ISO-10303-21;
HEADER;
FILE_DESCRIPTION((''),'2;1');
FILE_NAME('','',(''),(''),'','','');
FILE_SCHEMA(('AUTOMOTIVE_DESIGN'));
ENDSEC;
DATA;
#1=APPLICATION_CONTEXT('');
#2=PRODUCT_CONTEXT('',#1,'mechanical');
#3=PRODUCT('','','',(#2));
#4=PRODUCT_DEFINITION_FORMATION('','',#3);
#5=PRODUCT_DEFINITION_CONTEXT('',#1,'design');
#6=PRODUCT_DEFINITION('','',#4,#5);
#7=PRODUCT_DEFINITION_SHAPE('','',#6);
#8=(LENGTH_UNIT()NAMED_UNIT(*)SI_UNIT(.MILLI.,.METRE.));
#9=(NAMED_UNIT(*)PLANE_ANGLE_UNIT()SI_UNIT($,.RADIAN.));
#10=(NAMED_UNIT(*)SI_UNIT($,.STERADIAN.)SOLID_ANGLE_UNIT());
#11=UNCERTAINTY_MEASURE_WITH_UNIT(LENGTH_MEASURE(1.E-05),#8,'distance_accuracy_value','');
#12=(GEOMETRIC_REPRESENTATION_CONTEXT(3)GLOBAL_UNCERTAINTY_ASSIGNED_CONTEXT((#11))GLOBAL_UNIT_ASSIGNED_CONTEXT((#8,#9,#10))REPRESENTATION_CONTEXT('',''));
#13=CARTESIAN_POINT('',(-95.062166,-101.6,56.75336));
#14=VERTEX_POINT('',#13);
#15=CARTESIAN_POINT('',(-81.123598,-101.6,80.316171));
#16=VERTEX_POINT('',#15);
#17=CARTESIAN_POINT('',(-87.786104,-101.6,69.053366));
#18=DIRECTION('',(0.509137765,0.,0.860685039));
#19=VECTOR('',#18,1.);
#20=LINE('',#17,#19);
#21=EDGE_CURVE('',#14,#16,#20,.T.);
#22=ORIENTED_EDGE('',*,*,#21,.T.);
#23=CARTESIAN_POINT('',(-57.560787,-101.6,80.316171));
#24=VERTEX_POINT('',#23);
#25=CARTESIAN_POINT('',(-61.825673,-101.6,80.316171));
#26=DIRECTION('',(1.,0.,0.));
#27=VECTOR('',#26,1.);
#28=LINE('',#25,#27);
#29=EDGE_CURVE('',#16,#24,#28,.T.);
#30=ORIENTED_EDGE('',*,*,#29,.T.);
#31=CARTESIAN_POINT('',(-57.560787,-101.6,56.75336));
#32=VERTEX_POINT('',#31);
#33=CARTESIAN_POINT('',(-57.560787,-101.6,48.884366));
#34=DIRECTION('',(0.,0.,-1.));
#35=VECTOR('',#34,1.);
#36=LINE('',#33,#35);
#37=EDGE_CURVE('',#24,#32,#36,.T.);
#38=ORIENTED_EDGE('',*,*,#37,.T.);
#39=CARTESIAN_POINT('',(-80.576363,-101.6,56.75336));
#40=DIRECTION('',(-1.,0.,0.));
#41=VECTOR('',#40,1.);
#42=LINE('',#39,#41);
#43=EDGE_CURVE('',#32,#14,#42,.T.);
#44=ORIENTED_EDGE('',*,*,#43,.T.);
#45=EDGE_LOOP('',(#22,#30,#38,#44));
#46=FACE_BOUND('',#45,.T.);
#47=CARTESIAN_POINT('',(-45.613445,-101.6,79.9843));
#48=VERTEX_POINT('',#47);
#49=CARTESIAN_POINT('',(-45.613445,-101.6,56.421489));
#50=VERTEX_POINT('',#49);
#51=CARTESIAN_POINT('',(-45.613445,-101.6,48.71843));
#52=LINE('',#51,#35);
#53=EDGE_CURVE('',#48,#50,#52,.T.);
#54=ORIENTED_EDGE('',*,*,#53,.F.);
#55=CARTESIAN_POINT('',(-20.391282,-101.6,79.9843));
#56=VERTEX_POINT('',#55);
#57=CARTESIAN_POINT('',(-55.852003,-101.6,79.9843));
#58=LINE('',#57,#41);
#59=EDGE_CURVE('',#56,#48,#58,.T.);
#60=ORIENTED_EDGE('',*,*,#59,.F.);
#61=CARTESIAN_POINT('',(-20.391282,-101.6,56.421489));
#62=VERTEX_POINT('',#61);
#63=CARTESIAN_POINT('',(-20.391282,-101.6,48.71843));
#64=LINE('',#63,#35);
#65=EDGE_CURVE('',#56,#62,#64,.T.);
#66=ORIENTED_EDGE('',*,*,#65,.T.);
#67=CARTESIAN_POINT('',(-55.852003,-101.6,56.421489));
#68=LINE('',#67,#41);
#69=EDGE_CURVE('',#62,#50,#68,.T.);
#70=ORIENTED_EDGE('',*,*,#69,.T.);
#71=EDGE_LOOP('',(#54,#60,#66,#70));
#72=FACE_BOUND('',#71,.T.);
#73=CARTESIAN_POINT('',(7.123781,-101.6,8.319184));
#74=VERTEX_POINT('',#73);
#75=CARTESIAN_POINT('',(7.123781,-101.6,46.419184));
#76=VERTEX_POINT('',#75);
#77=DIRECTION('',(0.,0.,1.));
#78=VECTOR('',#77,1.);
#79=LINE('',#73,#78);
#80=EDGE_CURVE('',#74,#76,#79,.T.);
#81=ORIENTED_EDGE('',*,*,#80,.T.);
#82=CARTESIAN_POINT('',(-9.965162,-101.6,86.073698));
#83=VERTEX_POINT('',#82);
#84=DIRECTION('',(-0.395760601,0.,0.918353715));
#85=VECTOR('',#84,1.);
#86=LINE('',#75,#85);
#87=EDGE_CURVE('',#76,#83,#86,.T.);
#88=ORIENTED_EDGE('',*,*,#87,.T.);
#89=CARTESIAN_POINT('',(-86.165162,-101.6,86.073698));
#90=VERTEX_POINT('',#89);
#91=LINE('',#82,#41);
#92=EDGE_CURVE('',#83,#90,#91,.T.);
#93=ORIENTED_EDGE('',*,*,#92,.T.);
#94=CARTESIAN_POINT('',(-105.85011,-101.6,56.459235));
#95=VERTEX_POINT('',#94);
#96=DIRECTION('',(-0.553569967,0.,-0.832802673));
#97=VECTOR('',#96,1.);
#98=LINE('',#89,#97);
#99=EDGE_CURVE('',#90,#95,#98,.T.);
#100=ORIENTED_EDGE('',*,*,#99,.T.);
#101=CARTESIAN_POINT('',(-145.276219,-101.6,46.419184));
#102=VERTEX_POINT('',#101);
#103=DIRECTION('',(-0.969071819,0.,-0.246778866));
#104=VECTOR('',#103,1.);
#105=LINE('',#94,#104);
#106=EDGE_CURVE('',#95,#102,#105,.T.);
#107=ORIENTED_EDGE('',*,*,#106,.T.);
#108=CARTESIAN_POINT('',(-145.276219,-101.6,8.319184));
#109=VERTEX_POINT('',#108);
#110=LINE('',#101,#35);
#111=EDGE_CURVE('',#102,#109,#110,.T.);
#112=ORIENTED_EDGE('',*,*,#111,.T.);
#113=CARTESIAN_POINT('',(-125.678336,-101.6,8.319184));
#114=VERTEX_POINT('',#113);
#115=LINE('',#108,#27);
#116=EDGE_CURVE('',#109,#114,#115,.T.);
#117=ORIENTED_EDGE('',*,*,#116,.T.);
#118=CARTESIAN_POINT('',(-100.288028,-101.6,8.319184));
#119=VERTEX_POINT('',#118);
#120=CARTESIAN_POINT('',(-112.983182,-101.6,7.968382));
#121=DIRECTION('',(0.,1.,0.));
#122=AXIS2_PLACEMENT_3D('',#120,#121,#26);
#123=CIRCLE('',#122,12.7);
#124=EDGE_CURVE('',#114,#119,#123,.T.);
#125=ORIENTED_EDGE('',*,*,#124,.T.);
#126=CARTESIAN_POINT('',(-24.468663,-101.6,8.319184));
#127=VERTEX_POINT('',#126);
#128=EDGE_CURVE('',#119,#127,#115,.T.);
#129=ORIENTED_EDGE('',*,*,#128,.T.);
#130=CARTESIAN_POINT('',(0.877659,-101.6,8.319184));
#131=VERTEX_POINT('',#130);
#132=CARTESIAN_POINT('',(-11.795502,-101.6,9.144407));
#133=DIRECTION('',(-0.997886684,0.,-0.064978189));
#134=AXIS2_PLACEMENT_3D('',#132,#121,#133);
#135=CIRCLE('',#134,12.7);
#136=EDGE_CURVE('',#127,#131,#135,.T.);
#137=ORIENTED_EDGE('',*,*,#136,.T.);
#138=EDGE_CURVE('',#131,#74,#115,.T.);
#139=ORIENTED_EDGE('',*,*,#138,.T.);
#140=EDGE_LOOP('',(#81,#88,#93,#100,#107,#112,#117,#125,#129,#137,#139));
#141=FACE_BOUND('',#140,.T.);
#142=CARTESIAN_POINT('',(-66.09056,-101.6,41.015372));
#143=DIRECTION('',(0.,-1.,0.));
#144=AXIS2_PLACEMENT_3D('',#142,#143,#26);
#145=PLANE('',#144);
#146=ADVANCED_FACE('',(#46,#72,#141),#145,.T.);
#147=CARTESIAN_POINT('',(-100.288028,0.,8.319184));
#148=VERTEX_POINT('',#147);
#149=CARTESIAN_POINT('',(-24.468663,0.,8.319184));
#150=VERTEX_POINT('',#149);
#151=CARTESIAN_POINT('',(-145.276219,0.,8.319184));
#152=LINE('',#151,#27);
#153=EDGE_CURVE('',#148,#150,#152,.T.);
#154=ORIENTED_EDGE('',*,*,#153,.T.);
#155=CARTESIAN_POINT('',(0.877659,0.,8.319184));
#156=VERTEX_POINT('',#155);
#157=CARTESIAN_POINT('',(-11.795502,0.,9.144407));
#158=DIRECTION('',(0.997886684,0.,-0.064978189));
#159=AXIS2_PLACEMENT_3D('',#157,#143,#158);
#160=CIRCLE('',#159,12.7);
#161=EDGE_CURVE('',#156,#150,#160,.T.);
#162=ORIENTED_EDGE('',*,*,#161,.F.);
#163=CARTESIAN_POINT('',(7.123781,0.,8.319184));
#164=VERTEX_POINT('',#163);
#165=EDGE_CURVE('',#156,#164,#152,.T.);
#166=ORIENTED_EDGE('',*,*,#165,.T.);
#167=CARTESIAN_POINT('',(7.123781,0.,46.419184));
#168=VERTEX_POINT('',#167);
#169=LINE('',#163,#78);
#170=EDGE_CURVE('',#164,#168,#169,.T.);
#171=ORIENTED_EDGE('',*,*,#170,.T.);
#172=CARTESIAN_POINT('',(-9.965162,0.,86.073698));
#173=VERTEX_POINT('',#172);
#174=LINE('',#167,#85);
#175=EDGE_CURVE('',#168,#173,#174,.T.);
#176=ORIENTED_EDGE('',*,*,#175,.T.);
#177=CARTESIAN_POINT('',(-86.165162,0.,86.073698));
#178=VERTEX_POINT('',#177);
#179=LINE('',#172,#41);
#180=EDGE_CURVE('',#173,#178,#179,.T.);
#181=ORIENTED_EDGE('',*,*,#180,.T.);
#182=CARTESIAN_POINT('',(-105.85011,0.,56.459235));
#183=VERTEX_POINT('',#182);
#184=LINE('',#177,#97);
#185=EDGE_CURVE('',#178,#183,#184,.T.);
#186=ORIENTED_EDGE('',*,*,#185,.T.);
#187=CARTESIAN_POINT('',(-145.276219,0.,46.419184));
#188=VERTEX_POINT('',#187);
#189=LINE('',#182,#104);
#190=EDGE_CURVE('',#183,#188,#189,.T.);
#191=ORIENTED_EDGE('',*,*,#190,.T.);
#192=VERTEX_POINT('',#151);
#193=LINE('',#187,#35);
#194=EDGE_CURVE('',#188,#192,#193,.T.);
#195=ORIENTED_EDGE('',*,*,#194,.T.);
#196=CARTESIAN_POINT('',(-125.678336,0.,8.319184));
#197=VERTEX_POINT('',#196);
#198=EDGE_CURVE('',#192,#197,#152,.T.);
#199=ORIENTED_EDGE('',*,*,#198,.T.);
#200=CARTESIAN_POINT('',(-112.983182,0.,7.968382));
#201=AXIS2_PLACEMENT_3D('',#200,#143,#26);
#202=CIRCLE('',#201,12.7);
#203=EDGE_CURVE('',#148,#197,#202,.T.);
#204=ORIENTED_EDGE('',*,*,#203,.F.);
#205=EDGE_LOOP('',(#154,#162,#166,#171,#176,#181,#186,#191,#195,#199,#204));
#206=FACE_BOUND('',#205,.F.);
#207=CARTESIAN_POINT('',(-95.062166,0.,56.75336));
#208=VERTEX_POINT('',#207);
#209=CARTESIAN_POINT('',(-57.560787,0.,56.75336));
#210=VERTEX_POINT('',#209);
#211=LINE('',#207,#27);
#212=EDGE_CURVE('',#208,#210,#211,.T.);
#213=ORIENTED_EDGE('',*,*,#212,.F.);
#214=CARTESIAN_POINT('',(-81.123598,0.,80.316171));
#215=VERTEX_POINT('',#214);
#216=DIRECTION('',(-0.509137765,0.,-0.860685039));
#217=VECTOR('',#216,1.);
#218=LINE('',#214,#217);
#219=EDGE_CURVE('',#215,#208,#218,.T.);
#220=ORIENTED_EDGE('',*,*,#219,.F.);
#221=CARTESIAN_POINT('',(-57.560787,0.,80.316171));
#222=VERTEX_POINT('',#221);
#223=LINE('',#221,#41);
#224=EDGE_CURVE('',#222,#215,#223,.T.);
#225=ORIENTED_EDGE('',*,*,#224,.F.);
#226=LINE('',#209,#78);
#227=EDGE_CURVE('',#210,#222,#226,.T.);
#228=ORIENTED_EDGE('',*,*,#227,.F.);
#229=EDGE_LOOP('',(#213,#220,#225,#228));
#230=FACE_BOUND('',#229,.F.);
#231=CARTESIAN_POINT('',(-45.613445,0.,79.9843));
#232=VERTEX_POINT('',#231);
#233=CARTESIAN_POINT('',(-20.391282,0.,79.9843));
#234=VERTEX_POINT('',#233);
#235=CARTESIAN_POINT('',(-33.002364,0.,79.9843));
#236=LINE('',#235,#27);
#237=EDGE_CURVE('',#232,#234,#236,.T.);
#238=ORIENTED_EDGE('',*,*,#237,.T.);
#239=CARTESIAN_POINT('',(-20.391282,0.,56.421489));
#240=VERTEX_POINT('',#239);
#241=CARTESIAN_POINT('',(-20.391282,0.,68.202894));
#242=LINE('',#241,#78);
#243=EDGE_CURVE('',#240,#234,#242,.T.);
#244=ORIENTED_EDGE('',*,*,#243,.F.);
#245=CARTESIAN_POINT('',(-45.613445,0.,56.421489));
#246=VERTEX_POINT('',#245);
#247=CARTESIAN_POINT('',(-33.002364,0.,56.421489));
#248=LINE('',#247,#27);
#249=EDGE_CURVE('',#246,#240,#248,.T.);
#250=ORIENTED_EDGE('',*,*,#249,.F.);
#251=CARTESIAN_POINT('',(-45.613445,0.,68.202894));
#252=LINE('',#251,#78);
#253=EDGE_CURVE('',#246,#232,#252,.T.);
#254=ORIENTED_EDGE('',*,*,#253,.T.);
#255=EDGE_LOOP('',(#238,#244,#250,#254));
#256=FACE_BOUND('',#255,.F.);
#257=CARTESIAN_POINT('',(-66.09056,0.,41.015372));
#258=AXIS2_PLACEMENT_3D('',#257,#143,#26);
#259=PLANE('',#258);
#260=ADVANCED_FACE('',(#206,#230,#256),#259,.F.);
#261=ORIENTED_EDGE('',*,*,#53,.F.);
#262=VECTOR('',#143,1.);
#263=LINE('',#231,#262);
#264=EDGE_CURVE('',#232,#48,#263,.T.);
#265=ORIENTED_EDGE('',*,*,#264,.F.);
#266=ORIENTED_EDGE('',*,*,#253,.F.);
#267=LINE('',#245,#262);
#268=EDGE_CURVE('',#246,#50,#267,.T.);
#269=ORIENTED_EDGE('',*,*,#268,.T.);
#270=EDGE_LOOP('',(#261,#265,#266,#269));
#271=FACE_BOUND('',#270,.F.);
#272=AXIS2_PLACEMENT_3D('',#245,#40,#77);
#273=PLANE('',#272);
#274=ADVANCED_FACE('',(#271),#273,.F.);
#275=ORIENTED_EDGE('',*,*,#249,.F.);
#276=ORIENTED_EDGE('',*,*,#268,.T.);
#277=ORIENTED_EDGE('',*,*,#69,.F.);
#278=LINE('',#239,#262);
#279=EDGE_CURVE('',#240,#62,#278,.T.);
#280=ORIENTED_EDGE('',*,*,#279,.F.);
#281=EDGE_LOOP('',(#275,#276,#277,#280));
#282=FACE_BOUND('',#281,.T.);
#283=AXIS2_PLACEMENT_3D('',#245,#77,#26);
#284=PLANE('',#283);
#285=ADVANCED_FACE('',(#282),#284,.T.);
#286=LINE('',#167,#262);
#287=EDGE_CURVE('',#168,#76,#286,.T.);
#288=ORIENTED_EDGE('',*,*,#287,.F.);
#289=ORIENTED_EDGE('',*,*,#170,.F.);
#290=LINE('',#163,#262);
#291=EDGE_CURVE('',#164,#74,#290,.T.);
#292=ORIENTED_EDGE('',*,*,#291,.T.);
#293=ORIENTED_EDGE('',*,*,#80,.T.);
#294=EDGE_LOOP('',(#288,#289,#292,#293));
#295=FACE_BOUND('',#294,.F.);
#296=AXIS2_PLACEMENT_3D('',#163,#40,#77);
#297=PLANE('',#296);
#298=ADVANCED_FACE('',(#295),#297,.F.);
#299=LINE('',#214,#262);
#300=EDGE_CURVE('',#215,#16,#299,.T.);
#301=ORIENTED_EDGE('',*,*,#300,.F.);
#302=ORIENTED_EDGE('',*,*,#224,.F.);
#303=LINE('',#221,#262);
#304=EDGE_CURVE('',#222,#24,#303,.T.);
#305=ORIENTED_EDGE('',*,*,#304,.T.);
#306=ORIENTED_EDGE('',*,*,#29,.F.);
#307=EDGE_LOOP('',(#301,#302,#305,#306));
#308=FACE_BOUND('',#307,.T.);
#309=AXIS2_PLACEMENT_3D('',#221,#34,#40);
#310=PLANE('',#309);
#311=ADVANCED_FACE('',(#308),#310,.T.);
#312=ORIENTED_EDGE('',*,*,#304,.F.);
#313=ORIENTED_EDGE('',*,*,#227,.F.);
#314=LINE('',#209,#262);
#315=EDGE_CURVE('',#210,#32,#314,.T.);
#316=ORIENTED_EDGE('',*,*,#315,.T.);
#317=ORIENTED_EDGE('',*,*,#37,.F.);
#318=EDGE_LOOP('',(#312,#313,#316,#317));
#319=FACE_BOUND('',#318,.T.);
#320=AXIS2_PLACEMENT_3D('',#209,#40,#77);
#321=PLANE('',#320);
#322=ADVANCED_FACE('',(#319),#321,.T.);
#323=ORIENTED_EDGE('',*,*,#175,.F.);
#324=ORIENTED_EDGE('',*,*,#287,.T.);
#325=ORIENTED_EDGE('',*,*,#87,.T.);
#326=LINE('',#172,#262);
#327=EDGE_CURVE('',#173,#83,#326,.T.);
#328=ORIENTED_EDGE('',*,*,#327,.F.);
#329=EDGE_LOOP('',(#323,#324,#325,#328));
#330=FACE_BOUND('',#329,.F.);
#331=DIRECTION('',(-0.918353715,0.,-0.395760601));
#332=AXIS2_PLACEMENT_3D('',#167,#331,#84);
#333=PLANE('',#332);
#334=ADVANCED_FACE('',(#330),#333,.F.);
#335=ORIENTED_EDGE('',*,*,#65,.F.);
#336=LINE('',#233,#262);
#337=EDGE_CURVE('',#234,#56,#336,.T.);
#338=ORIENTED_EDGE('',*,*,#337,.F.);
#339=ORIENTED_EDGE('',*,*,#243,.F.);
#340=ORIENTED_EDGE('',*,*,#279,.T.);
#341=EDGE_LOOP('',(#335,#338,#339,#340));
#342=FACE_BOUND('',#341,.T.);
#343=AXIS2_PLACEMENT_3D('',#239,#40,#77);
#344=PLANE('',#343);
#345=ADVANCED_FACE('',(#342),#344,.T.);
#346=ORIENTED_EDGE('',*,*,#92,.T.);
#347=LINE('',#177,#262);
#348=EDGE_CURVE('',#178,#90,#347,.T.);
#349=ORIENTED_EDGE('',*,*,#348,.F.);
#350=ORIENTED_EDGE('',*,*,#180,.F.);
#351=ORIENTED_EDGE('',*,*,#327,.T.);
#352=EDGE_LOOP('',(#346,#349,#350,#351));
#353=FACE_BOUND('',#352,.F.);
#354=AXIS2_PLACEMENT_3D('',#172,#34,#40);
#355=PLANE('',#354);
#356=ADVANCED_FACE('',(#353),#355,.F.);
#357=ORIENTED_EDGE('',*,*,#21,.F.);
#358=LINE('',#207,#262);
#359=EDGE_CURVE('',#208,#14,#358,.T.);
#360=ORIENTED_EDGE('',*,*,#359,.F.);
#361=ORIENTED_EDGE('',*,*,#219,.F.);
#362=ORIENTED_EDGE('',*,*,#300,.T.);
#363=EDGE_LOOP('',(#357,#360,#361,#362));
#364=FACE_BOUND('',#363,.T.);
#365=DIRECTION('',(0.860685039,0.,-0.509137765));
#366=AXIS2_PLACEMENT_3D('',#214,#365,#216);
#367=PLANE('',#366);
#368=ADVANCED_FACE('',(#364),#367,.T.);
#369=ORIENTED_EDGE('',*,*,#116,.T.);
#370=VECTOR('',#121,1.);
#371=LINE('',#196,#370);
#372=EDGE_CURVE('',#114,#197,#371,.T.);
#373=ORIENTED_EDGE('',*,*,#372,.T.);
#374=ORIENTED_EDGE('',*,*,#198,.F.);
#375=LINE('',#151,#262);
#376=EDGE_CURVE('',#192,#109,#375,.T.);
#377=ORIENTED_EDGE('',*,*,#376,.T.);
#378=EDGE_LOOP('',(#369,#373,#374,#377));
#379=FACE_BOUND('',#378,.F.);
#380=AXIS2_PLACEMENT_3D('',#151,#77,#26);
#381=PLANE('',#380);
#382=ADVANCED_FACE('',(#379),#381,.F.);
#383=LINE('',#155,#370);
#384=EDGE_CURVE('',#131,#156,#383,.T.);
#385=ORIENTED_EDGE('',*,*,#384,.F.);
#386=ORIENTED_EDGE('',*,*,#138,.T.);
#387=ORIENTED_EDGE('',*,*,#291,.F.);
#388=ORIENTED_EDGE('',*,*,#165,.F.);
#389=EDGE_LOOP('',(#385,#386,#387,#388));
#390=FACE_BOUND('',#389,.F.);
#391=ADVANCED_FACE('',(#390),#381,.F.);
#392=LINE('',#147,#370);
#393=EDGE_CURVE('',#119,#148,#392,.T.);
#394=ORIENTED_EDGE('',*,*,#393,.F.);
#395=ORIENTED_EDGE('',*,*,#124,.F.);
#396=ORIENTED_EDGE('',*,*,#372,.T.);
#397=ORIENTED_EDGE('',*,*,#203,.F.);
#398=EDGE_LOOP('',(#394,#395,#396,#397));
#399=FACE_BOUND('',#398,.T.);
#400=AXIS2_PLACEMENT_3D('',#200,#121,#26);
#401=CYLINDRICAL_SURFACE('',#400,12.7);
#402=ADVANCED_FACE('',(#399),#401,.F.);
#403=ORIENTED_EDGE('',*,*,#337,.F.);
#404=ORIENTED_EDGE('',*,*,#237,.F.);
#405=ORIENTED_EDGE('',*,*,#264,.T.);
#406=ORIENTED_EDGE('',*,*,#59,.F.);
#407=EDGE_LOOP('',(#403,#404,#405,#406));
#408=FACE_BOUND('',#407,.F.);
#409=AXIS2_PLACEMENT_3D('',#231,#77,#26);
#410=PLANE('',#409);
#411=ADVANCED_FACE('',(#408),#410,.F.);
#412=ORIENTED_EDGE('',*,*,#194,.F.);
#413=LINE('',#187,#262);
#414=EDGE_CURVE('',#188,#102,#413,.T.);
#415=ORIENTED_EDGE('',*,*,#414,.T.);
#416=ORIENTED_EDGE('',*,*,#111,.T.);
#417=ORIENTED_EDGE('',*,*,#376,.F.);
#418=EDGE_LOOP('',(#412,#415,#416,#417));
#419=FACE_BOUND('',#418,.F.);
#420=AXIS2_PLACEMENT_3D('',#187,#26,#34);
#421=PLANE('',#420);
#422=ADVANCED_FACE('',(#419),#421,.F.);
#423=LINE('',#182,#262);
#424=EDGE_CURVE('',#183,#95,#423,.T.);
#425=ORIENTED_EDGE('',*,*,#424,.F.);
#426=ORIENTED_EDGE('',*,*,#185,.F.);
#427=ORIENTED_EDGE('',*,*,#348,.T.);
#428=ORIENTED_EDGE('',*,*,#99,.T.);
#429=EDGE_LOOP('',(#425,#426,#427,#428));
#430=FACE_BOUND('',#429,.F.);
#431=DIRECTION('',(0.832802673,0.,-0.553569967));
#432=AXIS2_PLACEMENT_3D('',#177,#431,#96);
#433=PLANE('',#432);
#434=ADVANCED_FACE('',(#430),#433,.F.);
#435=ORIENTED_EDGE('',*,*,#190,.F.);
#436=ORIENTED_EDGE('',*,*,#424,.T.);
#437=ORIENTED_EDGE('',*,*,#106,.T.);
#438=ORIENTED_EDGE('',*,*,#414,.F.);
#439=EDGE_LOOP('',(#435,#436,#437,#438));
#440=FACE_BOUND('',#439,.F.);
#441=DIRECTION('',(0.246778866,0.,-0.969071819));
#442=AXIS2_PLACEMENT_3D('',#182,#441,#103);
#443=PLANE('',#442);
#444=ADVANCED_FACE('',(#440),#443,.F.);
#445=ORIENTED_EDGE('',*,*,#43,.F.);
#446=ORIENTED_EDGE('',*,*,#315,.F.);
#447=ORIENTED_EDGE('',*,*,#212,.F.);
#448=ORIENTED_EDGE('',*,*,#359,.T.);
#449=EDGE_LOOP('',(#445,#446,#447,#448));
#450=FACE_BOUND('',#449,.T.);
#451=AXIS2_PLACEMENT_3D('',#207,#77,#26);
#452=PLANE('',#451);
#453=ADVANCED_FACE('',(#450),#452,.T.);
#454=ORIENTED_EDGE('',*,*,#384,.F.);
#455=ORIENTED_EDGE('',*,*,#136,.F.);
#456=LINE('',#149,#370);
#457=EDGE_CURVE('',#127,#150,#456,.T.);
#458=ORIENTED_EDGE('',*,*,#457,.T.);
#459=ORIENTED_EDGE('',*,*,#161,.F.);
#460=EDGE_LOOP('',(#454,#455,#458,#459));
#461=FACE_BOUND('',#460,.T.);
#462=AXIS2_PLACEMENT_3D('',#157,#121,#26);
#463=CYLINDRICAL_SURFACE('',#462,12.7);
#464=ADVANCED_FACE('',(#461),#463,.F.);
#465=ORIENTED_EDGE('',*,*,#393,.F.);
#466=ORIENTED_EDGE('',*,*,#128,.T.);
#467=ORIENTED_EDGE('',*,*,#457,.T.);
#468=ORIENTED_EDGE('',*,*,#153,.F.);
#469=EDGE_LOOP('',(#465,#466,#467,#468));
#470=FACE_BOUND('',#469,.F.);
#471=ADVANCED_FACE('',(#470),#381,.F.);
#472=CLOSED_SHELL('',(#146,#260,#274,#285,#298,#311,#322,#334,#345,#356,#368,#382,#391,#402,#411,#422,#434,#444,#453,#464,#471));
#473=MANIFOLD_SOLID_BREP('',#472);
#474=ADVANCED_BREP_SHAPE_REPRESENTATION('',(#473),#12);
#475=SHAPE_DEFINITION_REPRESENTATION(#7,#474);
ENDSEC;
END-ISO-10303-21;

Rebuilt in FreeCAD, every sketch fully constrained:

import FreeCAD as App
import Part
import Sketcher

V = App.Vector
Q = App.Units.Quantity


def add_polygon(sketch, points):
    """Adds a closed chain of lines whose ends are joined by coincident constraints."""
    first, n = sketch.GeometryCount, len(points)
    for a, b in zip(points, points[1:] + points[:1]):
        sketch.addGeometry(Part.LineSegment(App.Vector(*a, 0), App.Vector(*b, 0)), False)
    for i in range(n):
        sketch.addConstraint(Sketcher.Constraint("Coincident", first + i, 2, first + (i + 1) % n, 1))

doc = App.newDocument("Part")
body = doc.addObject("PartDesign::Body", "Body")

sketch1 = doc.addObject("Sketcher::SketchObject", "Sketch")
body.addObject(sketch1)
sketch1.AttachmentSupport = (doc.XZ_Plane, [""])
sketch1.MapMode = "FlatFace"
add_polygon(sketch1, [(-105.85011, 56.459235), (-145.276219, 46.419184), (-145.276219, 8.319184), (7.123781, 8.319184), (7.123781, 46.419184), (-9.965162, 86.073698), (-86.165162, 86.073698)])
sketch1.addConstraint([
    Sketcher.Constraint("Vertical", 1),
    Sketcher.Constraint("Horizontal", 2),
    Sketcher.Constraint("Vertical", 3),
    Sketcher.Constraint("Horizontal", 5),
    Sketcher.Constraint("Horizontal", 0, 2, 3, 2),
    Sketcher.Constraint("DistanceX", 2, 1, 2, 2, Q("6 in")),
    Sketcher.Constraint("DistanceX", 5, 2, 5, 1, Q("3 in")),
    Sketcher.Constraint("DistanceY", 1, 2, 1, 1, Q("1.5 in")),
    Sketcher.Constraint("Distance", 4, Q("1.7 in")),
    Sketcher.Constraint("Distance", 6, Q("1.4 in")),
    Sketcher.Constraint("DistanceX", 0, 2, -1, 1, 145.276219),
    Sketcher.Constraint("DistanceX", 5, 2, -1, 1, 86.165162),
    Sketcher.Constraint("DistanceX", 6, 2, -1, 1, 105.85011),
    Sketcher.Constraint("DistanceY", -1, 1, 0, 2, 46.419184),
])
pad1 = doc.addObject("PartDesign::Pad", "Pad")
body.addObject(pad1)
pad1.Profile = sketch1
pad1.Length = Q("4 in")

sketch2 = doc.addObject("Sketcher::SketchObject", "Sketch001")
body.addObject(sketch2)
sketch2.AttachmentSupport = (doc.XZ_Plane, [""])
sketch2.MapMode = "FlatFace"
add_polygon(sketch2, [(-81.123598, 80.316171), (-95.062166, 56.75336), (-57.560787, 56.75336), (-57.560787, 80.316171)])
sketch2.addConstraint([
    Sketcher.Constraint("Horizontal", 1),
    Sketcher.Constraint("Vertical", 2),
    Sketcher.Constraint("Horizontal", 3),
    Sketcher.Constraint("Equal", 3, 2),
    Sketcher.Constraint("DistanceX", 1, 1, 1, 2, 37.501379),
    Sketcher.Constraint("DistanceX", 3, 2, 3, 1, 23.562811),
    Sketcher.Constraint("DistanceX", 3, 2, -1, 1, 81.123598),
    Sketcher.Constraint("DistanceY", -1, 1, 0, 2, 56.75336),
])
pocket1 = doc.addObject("PartDesign::Pocket", "Pocket")
body.addObject(pocket1)
pocket1.Profile = sketch2
pocket1.Length = Q("4.53 in")
pocket1.Reversed = True

sketch3 = doc.addObject("Sketcher::SketchObject", "Sketch002")
body.addObject(sketch3)
sketch3.AttachmentSupport = (doc.XZ_Plane, [""])
sketch3.MapMode = "FlatFace"
add_polygon(sketch3, [(-45.613445, 79.9843), (-45.613445, 56.421489), (-20.391282, 56.421489), (-20.391282, 79.9843)])
sketch3.addConstraint([
    Sketcher.Constraint("Vertical", 0),
    Sketcher.Constraint("Horizontal", 1),
    Sketcher.Constraint("Vertical", 2),
    Sketcher.Constraint("Horizontal", 3),
    Sketcher.Constraint("DistanceY", 0, 2, 0, 1, 23.562811),
    Sketcher.Constraint("DistanceY", -1, 1, 2, 2, 79.9843),
    Sketcher.Constraint("DistanceX", 1, 1, 1, 2, 25.222163),
    Sketcher.Constraint("DistanceX", 0, 2, -1, 1, 45.613445),
])
pocket2 = doc.addObject("PartDesign::Pocket", "Pocket001")
body.addObject(pocket2)
pocket2.Profile = sketch3
pocket2.Length = Q("6.22 in")
pocket2.Reversed = True

sketch4 = doc.addObject("Sketcher::SketchObject", "Sketch003")
body.addObject(sketch4)
sketch4.AttachmentSupport = (doc.XZ_Plane, [""])
sketch4.MapMode = "FlatFace"
sketch4.addGeometry(Part.Circle(V(-112.983182, 7.968382, 0), V(0, 0, 1), 12.7), False)
sketch4.addConstraint([
    Sketcher.Constraint("Diameter", 0, Q("1 in")),
    Sketcher.Constraint("DistanceX", 0, 3, -1, 1, 112.983182),
    Sketcher.Constraint("DistanceY", -1, 1, 0, 3, 7.968382),
])
pocket3 = doc.addObject("PartDesign::Pocket", "Pocket002")
body.addObject(pocket3)
pocket3.Profile = sketch4
pocket3.Length = Q("7.71 in")
pocket3.Reversed = True

sketch5 = doc.addObject("Sketcher::SketchObject", "Sketch004")
body.addObject(sketch5)
sketch5.AttachmentSupport = (doc.XZ_Plane, [""])
sketch5.MapMode = "FlatFace"
sketch5.addGeometry(Part.Circle(V(-11.795502, 9.144407, 0), V(0, 0, 1), 12.7), False)
sketch5.addConstraint([
    Sketcher.Constraint("Diameter", 0, Q("1 in")),
    Sketcher.Constraint("DistanceX", 0, 3, -1, 1, 11.795502),
    Sketcher.Constraint("DistanceY", -1, 1, 0, 3, 9.144407),
])
pocket4 = doc.addObject("PartDesign::Pocket", "Pocket003")
body.addObject(pocket4)
pocket4.Profile = sketch5
pocket4.Length = Q("5.73 in")
pocket4.Reversed = True

doc.recompute()
